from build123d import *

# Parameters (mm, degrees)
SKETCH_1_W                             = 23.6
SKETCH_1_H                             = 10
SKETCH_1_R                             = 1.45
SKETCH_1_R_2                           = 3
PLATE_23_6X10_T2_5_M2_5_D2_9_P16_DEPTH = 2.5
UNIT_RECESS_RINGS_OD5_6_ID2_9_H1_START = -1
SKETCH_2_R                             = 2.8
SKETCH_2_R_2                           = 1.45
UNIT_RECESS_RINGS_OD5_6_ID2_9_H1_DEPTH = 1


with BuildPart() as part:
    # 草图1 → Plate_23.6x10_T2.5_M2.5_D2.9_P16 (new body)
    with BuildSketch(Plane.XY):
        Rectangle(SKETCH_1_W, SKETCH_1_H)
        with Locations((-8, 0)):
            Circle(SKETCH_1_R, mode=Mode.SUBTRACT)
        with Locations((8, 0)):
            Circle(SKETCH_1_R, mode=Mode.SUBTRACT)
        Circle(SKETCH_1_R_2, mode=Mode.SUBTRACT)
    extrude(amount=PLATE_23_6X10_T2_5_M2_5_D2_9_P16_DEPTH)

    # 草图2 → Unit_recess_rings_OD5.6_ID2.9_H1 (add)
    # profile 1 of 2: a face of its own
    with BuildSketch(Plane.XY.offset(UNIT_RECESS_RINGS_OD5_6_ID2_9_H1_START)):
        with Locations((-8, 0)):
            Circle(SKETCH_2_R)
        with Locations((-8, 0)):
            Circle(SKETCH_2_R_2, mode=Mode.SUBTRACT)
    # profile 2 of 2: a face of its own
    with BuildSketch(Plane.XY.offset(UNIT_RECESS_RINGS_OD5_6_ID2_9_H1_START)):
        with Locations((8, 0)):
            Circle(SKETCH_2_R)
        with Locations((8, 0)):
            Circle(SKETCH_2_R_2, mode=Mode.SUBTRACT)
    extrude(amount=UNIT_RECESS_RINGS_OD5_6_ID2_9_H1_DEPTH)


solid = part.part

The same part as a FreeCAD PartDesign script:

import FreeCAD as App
import Part
import Sketcher

doc = App.newDocument("Part")
body = doc.addObject("PartDesign::Body", "Body")

# Sketch on XY plane
sketch1 = body.newObject("Sketcher::SketchObject", "Sketch")
sketch1.AttachmentSupport = (doc.getObject("XY_Plane"), [""])
sketch1.MapMode = "FlatFace"
sketch1.addGeometry([
    Part.LineSegment(App.Vector(-11.8, 5, 0), App.Vector(-11.8, -5, 0)),  # 0
    Part.LineSegment(App.Vector(-11.8, -5, 0), App.Vector(11.8, -5, 0)),  # 1
    Part.LineSegment(App.Vector(11.8, -5, 0), App.Vector(11.8, 5, 0)),  # 2
    Part.LineSegment(App.Vector(11.8, 5, 0), App.Vector(-11.8, 5, 0)),  # 3
    Part.Circle(App.Vector(-8, 0, 0), App.Vector(0, 0, 1), 1.4),  # 4
    Part.Circle(App.Vector(0, 0, 0), App.Vector(0, 0, 1), 3),  # 5
    Part.Circle(App.Vector(8, 0, 0), App.Vector(0, 0, 1), 1.4),  # 6
], False)
sketch1.addConstraint([
    Sketcher.Constraint("Coincident", 0, 2, 1, 1),
    Sketcher.Constraint("Coincident", 1, 2, 2, 1),
    Sketcher.Constraint("Coincident", 2, 2, 3, 1),
    Sketcher.Constraint("Coincident", 3, 2, 0, 1),
    Sketcher.Constraint("Vertical", 0),
    Sketcher.Constraint("Horizontal", 1),
    Sketcher.Constraint("Vertical", 2),
    Sketcher.Constraint("Horizontal", 3),
    Sketcher.Constraint("Coincident", 5, 3, -1, 1),
    Sketcher.Constraint("Equal", 4, 6),
    Sketcher.Constraint("Symmetric", 4, 3, 6, 3, -1, 1),
    Sketcher.Constraint("Symmetric", 0, 2, 2, 2, -1, 1),
    Sketcher.Constraint("PointOnObject", 4, 3, -1),
    Sketcher.Constraint("Diameter", 5, 6.0),
    Sketcher.Constraint("Diameter", 4, 2.9),
    Sketcher.Constraint("DistanceY", 0, 2, 0, 1, 10.0),
    Sketcher.Constraint("DistanceX", 1, 1, 1, 2, 23.6),
    Sketcher.Constraint("DistanceX", 4, 3, -1, 1, 8.0),
])
pad1 = body.newObject("PartDesign::Pad", "Pad")
pad1.Profile = sketch1
pad1.Length = 2.5

# Sketch on XY plane
sketch2 = body.newObject("Sketcher::SketchObject", "Sketch001")
sketch2.AttachmentSupport = (doc.getObject("XY_Plane"), [""])
sketch2.MapMode = "FlatFace"
sketch2.AttachmentOffset = App.Placement(App.Vector(0, 0, -1), App.Rotation())
sketch2.addGeometry([
    Part.Circle(App.Vector(-8, 0, 0), App.Vector(0, 0, 1), 2.8),
    Part.Circle(App.Vector(-8, 0, 0), App.Vector(0, 0, 1), 1.4),
    Part.Circle(App.Vector(8, 0, 0), App.Vector(0, 0, 1), 2.8),
    Part.Circle(App.Vector(8, 0, 0), App.Vector(0, 0, 1), 1.4),
], False)
sketch2.addConstraint([
    Sketcher.Constraint("Coincident", 1, 3, 0, 3),
    Sketcher.Constraint("Coincident", 3, 3, 2, 3),
    Sketcher.Constraint("Equal", 0, 2),
    Sketcher.Constraint("Equal", 1, 3),
    Sketcher.Constraint("Symmetric", 0, 3, 2, 3, -1, 1),
    Sketcher.Constraint("PointOnObject", 0, 3, -1),
    Sketcher.Constraint("Diameter", 0, 5.6),
    Sketcher.Constraint("Diameter", 1, 2.9),
    Sketcher.Constraint("DistanceX", 0, 3, -1, 1, 8.0),
])
pad2 = body.newObject("PartDesign::Pad", "Pad001")
pad2.Profile = sketch2
pad2.Length = 1

doc.recompute()
